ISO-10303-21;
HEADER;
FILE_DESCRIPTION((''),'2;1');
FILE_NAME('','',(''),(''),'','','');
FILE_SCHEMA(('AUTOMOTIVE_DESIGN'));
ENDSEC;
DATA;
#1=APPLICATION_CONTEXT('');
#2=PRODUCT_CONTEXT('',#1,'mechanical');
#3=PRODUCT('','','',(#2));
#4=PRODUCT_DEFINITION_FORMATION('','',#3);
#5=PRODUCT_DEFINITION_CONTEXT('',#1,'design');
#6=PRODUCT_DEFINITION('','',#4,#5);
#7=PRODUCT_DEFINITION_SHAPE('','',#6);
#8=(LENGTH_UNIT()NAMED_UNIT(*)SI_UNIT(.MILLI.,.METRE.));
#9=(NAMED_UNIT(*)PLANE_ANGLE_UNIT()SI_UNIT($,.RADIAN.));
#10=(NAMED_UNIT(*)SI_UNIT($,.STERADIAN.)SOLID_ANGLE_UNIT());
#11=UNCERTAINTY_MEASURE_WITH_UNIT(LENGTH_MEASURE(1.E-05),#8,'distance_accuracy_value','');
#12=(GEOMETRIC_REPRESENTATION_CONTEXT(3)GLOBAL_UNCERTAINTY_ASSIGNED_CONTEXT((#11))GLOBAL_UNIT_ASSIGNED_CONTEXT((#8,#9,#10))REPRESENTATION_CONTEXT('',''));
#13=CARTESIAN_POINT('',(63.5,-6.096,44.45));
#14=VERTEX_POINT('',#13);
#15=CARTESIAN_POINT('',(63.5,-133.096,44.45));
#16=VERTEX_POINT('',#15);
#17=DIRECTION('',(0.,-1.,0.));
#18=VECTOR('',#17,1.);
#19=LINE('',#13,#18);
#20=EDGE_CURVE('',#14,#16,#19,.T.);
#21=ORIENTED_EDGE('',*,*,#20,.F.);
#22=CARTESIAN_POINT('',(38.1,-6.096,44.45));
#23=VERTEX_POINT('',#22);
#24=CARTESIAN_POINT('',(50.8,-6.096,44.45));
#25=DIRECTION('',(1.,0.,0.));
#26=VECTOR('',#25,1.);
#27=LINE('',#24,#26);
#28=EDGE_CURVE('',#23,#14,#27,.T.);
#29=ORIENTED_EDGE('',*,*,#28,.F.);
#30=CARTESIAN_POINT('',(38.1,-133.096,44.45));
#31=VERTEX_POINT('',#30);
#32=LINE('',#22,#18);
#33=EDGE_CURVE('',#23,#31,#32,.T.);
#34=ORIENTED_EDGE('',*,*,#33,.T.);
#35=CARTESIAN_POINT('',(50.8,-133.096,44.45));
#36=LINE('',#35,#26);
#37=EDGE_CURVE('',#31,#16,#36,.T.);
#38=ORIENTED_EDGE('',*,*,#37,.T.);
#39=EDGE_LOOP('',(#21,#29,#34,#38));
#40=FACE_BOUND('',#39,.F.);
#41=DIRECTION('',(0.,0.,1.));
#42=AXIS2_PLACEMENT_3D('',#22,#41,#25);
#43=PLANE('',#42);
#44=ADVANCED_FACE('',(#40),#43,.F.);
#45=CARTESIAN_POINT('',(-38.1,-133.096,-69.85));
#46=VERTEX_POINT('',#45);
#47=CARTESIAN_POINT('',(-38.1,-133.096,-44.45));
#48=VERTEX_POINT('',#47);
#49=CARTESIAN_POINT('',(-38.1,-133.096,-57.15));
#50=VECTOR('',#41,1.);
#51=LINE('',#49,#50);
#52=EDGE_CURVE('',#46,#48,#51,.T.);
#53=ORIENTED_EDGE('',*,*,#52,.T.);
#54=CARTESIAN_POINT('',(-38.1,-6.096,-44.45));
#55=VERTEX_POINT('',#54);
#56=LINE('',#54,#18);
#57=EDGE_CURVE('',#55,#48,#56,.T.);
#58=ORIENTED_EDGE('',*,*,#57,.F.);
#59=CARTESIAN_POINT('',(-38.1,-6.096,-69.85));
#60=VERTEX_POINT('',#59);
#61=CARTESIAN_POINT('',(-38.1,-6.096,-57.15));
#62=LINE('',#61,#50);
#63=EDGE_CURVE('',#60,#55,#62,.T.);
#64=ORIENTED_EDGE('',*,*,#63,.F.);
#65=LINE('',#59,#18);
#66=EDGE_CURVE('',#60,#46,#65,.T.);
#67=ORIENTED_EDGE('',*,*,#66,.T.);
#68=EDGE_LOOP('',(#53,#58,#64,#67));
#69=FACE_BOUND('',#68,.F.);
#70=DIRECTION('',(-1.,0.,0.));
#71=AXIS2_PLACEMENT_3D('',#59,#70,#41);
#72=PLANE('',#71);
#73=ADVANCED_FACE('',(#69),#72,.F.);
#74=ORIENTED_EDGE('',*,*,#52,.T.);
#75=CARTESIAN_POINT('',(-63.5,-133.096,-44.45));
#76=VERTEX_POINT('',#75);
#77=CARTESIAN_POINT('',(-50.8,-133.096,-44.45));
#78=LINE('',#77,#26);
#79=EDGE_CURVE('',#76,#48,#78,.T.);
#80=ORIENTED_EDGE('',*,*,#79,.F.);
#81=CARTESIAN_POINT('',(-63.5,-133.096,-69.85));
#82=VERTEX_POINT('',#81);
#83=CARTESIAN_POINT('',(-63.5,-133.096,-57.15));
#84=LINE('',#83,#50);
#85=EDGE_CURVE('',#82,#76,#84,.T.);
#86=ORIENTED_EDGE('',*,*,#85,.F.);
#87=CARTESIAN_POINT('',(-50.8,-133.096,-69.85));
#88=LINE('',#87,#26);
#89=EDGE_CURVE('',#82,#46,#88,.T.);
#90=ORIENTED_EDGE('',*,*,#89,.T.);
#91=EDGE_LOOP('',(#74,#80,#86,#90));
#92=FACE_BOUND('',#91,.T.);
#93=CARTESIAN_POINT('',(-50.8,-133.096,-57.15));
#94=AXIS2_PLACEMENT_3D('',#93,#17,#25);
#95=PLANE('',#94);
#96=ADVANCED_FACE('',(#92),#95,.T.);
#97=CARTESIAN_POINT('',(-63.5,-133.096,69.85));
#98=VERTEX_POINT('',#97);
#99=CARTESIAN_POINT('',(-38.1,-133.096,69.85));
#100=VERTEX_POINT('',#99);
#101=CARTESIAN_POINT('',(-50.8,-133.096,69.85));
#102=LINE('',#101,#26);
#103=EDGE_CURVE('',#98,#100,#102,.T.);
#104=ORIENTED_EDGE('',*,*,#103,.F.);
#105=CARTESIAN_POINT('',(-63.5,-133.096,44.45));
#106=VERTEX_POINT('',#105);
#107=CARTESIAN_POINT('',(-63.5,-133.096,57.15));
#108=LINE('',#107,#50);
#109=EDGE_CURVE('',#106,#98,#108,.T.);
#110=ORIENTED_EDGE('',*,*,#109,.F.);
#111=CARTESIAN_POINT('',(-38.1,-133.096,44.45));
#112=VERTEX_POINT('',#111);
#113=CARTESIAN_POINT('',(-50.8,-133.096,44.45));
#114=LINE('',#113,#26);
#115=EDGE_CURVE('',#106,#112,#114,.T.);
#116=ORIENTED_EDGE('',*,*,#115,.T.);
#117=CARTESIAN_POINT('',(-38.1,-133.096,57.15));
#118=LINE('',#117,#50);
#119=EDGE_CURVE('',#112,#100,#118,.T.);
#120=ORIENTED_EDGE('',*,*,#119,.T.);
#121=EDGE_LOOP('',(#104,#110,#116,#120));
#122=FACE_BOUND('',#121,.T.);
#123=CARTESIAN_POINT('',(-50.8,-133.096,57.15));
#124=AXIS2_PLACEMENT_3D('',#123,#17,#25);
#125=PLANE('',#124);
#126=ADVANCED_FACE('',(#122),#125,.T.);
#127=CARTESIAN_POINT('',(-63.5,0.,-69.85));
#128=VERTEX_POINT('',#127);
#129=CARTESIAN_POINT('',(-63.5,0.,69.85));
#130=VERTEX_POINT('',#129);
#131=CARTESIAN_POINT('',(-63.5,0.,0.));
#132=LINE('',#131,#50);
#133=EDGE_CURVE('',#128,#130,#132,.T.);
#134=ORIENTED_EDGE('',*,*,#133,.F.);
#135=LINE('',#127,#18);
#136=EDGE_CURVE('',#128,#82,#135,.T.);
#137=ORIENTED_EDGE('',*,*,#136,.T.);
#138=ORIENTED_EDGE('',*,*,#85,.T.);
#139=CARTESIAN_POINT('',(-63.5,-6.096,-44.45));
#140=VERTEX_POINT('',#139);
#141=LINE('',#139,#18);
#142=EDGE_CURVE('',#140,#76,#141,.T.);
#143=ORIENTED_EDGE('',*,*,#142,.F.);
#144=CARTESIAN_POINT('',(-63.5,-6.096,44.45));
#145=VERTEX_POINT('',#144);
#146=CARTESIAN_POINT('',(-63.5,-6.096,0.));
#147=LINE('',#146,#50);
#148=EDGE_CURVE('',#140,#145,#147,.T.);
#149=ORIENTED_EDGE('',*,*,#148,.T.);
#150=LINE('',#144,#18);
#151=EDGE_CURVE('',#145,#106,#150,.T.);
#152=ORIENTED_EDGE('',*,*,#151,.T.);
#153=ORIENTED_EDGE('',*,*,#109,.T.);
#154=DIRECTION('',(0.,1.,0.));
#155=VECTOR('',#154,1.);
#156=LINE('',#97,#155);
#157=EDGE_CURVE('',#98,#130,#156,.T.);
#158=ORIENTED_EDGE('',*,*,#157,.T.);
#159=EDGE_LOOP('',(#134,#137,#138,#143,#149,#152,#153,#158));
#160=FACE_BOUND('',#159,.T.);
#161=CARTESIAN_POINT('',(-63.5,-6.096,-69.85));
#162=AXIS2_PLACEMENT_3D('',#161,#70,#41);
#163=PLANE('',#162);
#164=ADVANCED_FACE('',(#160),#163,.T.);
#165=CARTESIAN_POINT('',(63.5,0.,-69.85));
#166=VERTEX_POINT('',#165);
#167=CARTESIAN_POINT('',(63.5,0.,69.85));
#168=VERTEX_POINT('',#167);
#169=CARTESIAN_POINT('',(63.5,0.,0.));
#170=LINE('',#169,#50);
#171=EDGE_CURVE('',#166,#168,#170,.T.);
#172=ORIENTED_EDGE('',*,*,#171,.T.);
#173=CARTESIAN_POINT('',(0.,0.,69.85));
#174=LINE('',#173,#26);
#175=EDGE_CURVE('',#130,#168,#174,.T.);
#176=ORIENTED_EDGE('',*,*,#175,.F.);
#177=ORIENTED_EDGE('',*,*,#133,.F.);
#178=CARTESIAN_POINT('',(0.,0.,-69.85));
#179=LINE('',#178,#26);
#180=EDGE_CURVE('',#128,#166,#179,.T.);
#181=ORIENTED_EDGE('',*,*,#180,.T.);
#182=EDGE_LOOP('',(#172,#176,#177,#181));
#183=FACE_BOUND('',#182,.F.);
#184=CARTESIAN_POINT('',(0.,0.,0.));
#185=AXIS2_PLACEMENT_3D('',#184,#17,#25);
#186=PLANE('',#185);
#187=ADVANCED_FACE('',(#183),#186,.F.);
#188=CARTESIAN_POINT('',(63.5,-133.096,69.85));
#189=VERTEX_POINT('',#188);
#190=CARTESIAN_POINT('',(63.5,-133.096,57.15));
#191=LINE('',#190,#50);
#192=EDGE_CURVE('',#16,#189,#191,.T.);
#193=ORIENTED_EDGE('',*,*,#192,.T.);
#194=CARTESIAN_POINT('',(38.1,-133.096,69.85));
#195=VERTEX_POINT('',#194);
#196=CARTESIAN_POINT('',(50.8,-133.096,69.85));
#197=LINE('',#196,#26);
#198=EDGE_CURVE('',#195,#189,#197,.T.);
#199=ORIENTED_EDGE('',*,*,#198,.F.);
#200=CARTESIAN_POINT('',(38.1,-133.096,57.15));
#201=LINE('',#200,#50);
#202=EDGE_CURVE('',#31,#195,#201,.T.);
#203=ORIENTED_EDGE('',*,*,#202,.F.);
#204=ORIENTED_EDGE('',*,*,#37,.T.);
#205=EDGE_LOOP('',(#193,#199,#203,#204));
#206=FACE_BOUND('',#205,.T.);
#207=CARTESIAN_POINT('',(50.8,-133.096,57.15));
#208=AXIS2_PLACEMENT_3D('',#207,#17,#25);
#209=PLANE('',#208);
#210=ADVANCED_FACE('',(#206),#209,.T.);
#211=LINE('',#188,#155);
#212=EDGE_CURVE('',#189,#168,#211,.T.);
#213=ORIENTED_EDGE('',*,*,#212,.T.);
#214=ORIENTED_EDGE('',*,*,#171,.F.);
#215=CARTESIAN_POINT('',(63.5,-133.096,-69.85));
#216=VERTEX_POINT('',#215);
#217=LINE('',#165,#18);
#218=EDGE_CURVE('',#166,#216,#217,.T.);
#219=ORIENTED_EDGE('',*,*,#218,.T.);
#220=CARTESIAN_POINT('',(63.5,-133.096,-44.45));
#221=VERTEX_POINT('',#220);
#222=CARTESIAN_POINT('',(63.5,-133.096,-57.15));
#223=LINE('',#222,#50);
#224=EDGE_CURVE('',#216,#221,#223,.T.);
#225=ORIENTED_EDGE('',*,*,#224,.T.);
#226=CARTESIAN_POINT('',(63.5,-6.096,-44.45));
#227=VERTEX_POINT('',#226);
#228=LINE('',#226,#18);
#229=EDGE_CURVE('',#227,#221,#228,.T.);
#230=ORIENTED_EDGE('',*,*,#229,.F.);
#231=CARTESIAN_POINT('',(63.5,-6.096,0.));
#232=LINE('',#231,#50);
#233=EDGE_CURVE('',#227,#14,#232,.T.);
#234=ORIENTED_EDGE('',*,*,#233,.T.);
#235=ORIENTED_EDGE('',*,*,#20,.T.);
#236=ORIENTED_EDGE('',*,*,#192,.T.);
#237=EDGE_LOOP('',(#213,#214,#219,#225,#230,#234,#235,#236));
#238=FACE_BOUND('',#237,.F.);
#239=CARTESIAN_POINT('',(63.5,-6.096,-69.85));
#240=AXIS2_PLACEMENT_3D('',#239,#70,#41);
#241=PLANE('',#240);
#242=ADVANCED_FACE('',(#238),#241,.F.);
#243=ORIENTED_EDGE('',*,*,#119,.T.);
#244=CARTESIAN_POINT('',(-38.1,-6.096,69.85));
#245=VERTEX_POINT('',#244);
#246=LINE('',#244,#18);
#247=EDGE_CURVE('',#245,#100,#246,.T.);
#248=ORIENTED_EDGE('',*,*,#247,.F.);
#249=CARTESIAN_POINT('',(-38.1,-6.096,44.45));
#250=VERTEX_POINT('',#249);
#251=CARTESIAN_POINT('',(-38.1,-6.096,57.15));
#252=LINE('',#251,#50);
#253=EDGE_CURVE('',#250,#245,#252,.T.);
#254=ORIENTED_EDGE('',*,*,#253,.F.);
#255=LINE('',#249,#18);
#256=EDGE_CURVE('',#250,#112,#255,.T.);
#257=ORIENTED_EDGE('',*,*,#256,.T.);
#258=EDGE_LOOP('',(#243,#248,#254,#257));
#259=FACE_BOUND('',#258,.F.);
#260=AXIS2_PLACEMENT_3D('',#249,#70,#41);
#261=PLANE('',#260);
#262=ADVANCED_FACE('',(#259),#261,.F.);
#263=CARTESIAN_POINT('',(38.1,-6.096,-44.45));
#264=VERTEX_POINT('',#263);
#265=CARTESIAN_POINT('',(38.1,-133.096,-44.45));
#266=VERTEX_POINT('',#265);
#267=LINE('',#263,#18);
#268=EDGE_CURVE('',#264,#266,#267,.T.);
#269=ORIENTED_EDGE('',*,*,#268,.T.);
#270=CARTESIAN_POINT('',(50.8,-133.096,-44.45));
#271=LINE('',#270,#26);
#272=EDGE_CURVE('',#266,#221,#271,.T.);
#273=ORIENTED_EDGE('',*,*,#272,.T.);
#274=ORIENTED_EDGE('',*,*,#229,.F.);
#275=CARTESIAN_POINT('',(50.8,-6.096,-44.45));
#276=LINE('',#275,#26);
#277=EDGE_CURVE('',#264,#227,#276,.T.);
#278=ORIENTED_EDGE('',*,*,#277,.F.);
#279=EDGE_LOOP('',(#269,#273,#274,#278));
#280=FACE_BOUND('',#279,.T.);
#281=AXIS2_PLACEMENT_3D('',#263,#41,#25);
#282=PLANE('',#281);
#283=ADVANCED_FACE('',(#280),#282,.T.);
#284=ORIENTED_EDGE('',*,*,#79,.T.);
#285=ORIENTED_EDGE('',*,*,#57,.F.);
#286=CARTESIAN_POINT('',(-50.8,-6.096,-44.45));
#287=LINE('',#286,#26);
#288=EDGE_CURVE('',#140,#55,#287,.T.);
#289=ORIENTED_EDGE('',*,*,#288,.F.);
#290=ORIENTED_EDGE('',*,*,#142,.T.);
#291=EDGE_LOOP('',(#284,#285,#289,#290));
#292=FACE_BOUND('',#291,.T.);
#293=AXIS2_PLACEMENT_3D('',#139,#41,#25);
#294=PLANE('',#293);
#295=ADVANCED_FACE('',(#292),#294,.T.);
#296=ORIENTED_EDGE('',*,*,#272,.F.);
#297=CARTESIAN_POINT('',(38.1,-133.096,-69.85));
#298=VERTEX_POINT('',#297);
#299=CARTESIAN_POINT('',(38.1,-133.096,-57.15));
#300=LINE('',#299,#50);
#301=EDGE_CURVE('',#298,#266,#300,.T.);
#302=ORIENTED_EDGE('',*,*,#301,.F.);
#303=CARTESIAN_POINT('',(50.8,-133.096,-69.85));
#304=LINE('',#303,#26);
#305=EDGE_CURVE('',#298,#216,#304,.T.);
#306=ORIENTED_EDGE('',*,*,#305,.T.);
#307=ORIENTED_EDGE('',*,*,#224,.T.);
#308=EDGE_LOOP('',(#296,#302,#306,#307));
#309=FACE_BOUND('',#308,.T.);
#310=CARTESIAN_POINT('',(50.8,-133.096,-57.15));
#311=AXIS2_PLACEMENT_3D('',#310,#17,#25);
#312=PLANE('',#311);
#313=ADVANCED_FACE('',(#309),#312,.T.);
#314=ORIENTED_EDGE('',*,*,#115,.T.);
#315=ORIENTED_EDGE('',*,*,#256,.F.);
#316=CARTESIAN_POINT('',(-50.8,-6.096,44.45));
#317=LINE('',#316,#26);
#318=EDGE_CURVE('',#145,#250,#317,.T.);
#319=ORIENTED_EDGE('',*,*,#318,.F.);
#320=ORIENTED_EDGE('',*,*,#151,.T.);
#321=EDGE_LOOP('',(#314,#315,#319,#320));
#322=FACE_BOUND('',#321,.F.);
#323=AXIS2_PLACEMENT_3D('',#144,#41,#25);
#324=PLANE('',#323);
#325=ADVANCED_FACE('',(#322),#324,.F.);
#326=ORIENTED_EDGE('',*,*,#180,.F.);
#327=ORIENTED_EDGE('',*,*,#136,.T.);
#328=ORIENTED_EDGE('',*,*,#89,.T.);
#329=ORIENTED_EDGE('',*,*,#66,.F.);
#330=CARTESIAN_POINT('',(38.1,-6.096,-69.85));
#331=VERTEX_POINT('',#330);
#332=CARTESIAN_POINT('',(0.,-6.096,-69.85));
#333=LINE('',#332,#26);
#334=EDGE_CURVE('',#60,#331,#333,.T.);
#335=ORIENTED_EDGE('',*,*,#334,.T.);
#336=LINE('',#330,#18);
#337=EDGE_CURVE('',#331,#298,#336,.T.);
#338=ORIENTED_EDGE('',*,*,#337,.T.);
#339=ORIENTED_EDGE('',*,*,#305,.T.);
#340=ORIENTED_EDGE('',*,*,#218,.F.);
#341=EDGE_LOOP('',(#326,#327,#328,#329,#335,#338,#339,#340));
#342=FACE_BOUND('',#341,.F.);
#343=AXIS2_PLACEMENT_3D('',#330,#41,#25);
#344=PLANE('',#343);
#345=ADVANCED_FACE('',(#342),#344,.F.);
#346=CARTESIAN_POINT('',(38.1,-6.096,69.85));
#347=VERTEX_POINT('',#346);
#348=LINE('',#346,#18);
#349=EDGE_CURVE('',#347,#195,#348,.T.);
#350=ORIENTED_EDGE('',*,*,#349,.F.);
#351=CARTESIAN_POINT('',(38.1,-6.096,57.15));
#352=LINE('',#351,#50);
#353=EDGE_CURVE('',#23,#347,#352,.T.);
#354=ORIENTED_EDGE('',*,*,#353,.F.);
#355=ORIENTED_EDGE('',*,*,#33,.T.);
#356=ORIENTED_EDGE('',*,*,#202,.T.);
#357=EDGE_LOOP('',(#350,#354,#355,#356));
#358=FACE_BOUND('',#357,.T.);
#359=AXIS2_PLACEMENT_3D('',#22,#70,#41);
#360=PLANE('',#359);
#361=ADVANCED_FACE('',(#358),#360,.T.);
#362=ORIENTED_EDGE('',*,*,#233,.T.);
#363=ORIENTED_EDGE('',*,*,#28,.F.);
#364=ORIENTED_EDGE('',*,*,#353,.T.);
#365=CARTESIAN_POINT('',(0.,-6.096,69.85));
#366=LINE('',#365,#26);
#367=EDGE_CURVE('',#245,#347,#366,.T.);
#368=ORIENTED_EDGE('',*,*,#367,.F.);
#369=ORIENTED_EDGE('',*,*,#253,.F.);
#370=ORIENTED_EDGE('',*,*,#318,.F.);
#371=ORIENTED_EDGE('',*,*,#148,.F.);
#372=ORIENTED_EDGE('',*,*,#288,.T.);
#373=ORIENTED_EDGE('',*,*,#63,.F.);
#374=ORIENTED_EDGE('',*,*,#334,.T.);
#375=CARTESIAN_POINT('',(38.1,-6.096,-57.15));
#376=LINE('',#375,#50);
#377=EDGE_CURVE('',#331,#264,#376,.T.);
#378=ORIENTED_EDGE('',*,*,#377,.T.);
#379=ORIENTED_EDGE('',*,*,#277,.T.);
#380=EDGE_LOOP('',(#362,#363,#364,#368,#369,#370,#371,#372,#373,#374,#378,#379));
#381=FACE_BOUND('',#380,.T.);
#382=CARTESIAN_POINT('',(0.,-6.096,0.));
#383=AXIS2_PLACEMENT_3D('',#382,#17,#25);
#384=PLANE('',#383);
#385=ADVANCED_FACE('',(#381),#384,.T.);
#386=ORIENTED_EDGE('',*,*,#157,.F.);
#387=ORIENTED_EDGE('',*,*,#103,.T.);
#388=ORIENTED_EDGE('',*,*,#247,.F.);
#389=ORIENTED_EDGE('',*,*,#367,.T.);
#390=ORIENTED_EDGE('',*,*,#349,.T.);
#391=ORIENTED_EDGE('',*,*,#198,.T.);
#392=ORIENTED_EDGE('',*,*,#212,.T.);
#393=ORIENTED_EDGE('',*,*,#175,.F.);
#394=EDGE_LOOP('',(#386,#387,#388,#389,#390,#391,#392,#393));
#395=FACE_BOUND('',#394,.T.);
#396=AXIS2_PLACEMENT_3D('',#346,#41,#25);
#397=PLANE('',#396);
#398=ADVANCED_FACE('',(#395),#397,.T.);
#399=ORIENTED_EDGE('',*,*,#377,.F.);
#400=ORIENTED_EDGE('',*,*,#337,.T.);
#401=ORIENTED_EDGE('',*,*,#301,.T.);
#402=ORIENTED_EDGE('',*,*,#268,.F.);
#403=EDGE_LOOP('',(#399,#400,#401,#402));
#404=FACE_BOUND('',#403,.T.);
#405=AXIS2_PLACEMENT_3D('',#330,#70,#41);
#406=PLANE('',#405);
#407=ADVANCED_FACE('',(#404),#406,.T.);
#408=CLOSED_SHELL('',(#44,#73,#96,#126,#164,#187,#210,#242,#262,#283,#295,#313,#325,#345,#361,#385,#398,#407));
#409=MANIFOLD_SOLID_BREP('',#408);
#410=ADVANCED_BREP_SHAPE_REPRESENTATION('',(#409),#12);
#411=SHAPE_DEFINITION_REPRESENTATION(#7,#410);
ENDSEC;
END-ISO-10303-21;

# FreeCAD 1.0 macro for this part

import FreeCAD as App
import Part
import Sketcher
from FreeCAD import Vector
Q = App.Units.Quantity


def add_polygon(sketch, points):
    """Adds a closed chain of lines whose ends are joined by coincident constraints."""
    first, n = sketch.GeometryCount, len(points)
    for a, b in zip(points, points[1:] + points[:1]):
        sketch.addGeometry(Part.LineSegment(App.Vector(*a, 0), App.Vector(*b, 0)), False)
    for i in range(n):
        sketch.addConstraint(Sketcher.Constraint("Coincident", first + i, 2, first + (i + 1) % n, 1))

doc = App.newDocument("Part")
params = doc.addObject("Spreadsheet::Sheet", "Params")
for row, (alias, value) in enumerate([
    ("sketch1_width", "5 in"),
    ("sketch1_height", "5.5 in"),
    ("pad1_length", "0.24 in"),
    ("sketch2_width", "1 in"),
    ("pad2_length", "5 in"),
    ("sketch3_width", "1 in"),
    ("pad3_length", "5 in"),
    ("sketch4_width", "1 in"),
    ("pad4_length", "5 in"),
    ("sketch5_width", "1 in"),
    ("pad5_length", "5 in"),
], start=1):
    params.set(f"A{row}", alias)
    params.set(f"B{row}", "=" + value)
    params.setAlias(f"B{row}", alias)

body = doc.addObject("PartDesign::Body", "Body")

sketch1 = body.newObject("Sketcher::SketchObject", "Sketch")
sketch1.AttachmentSupport = (doc.getObject("XZ_Plane"), [""])
sketch1.MapMode = "FlatFace"
add_polygon(sketch1, [(-63.5, 69.85), (-63.5, -69.85), (63.5, -69.85), (63.5, 69.85)])
sketch1.addConstraint([
    Sketcher.Constraint("Vertical", 0),
    Sketcher.Constraint("Horizontal", 1),
    Sketcher.Constraint("Vertical", 2),
    Sketcher.Constraint("Horizontal", 3),
    Sketcher.Constraint("Symmetric", 0, 2, 2, 2, -1, 1),
    Sketcher.Constraint("DistanceX", 1, 1, 1, 2, Q("5 in")),
    Sketcher.Constraint("DistanceY", 0, 2, 0, 1, Q("5.5 in")),
])
sketch1.setExpression("Constraints[9]", "Params.sketch1_width")
sketch1.setExpression("Constraints[10]", "Params.sketch1_height")
pad1 = body.newObject("PartDesign::Pad", "Pad")
pad1.Profile = sketch1
pad1.setExpression("Length", "Params.pad1_length")

sketch2 = body.newObject("Sketcher::SketchObject", "Sketch001")
sketch2.AttachmentSupport = (doc.getObject("XZ_Plane"), [""])
sketch2.MapMode = "FlatFace"
sketch2.AttachmentOffset = App.Placement(Vector(0, 0, 0.24 * 25.4), App.Rotation())
add_polygon(sketch2, [(-63.5, 69.85), (-63.5, 44.45), (-38.1, 44.45), (-38.1, 69.85)])
sketch2.addConstraint([
    Sketcher.Constraint("Vertical", 0),
    Sketcher.Constraint("Horizontal", 1),
    Sketcher.Constraint("Vertical", 2),
    Sketcher.Constraint("Horizontal", 3),
    Sketcher.Constraint("Equal", 3, 0),
    Sketcher.Constraint("DistanceX", 1, 1, 1, 2, Q("1 in")),
    Sketcher.Constraint("DistanceX", 0, 2, -1, 1, Q("2.5 in")),
    Sketcher.Constraint("DistanceY", -1, 1, 0, 2, Q("1.75 in")),
])
sketch2.setExpression("Constraints[9]", "Params.sketch2_width")
pad2 = body.newObject("PartDesign::Pad", "Pad001")
pad2.Profile = sketch2
pad2.setExpression("Length", "Params.pad2_length")

sketch3 = body.newObject("Sketcher::SketchObject", "Sketch002")
sketch3.AttachmentSupport = (doc.getObject("XZ_Plane"), [""])
sketch3.MapMode = "FlatFace"
sketch3.AttachmentOffset = App.Placement(Vector(0, 0, 0.24 * 25.4), App.Rotation())
add_polygon(sketch3, [(-63.5, -44.45), (-63.5, -69.85), (-38.1, -69.85), (-38.1, -44.45)])
sketch3.addConstraint([
    Sketcher.Constraint("Vertical", 0),
    Sketcher.Constraint("Horizontal", 1),
    Sketcher.Constraint("Vertical", 2),
    Sketcher.Constraint("Horizontal", 3),
    Sketcher.Constraint("Equal", 3, 0),
    Sketcher.Constraint("DistanceX", 1, 1, 1, 2, Q("1 in")),
    Sketcher.Constraint("DistanceX", 0, 2, -1, 1, Q("2.5 in")),
    Sketcher.Constraint("DistanceY", 0, 2, -1, 1, Q("2.75 in")),
])
sketch3.setExpression("Constraints[9]", "Params.sketch3_width")
pad3 = body.newObject("PartDesign::Pad", "Pad002")
pad3.Profile = sketch3
pad3.setExpression("Length", "Params.pad3_length")

sketch4 = body.newObject("Sketcher::SketchObject", "Sketch003")
sketch4.AttachmentSupport = (doc.getObject("XZ_Plane"), [""])
sketch4.MapMode = "FlatFace"
sketch4.AttachmentOffset = App.Placement(Vector(0, 0, 0.24 * 25.4), App.Rotation())
add_polygon(sketch4, [(38.1, 69.85), (38.1, 44.45), (63.5, 44.45), (63.5, 69.85)])
sketch4.addConstraint([
    Sketcher.Constraint("Vertical", 0),
    Sketcher.Constraint("Horizontal", 1),
    Sketcher.Constraint("Vertical", 2),
    Sketcher.Constraint("Horizontal", 3),
    Sketcher.Constraint("Equal", 3, 0),
    Sketcher.Constraint("DistanceX", 1, 1, 1, 2, Q("1 in")),
    Sketcher.Constraint("DistanceX", -1, 1, 0, 2, Q("1.5 in")),
    Sketcher.Constraint("DistanceY", -1, 1, 0, 2, Q("1.75 in")),
])
sketch4.setExpression("Constraints[9]", "Params.sketch4_width")
pad4 = body.newObject("PartDesign::Pad", "Pad003")
pad4.Profile = sketch4
pad4.setExpression("Length", "Params.pad4_length")

sketch5 = body.newObject("Sketcher::SketchObject", "Sketch004")
sketch5.AttachmentSupport = (doc.getObject("XZ_Plane"), [""])
sketch5.MapMode = "FlatFace"
sketch5.AttachmentOffset = App.Placement(Vector(0, 0, 0.24 * 25.4), App.Rotation())
add_polygon(sketch5, [(38.1, -44.45), (38.1, -69.85), (63.5, -69.85), (63.5, -44.45)])
sketch5.addConstraint([
    Sketcher.Constraint("Vertical", 0),
    Sketcher.Constraint("Horizontal", 1),
    Sketcher.Constraint("Vertical", 2),
    Sketcher.Constraint("Horizontal", 3),
    Sketcher.Constraint("Equal", 3, 0),
    Sketcher.Constraint("DistanceX", 1, 1, 1, 2, Q("1 in")),
    Sketcher.Constraint("DistanceX", -1, 1, 0, 2, Q("1.5 in")),
    Sketcher.Constraint("DistanceY", 0, 2, -1, 1, Q("2.75 in")),
])
sketch5.setExpression("Constraints[9]", "Params.sketch5_width")
pad5 = body.newObject("PartDesign::Pad", "Pad004")
pad5.Profile = sketch5
pad5.setExpression("Length", "Params.pad5_length")

doc.recompute()
